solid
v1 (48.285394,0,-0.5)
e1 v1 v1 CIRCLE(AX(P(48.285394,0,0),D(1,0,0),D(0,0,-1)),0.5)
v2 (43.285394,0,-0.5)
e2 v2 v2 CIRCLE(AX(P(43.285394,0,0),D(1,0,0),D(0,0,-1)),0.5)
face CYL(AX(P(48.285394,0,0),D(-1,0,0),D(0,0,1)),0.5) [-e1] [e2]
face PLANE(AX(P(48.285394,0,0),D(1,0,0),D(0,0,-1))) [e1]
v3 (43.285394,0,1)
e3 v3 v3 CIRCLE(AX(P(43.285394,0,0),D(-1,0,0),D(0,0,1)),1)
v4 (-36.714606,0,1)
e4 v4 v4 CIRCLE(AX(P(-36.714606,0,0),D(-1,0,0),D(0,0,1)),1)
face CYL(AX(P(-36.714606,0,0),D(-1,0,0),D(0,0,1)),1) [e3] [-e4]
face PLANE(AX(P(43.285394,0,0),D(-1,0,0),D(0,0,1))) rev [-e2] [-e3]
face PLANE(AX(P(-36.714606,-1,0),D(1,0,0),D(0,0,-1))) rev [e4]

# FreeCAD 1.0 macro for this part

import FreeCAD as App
import Part
import Sketcher
from FreeCAD import Vector

doc = App.newDocument("Part")
body = doc.addObject("PartDesign::Body", "Body")

# Sketch on XY plane
sketch1 = body.newObject("Sketcher::SketchObject", "Sketch")
sketch1.AttachmentSupport = (doc.getObject("XY_Plane"), [""])
sketch1.MapMode = "FlatFace"
sketch1.addGeometry([
    Part.LineSegment(Vector(-36.714606, 1, 0), Vector(-36.714606, 0, 0)),
    Part.LineSegment(Vector(-36.714606, 0, 0), Vector(43.285394, 0, 0)),
    Part.LineSegment(Vector(43.285394, 0, 0), Vector(43.285394, 1, 0)),
    Part.LineSegment(Vector(43.285394, 1, 0), Vector(-36.714606, 1, 0)),
], False)
sketch1.addConstraint([
    Sketcher.Constraint("Coincident", 0, 2, 1, 1),
    Sketcher.Constraint("Coincident", 1, 2, 2, 1),
    Sketcher.Constraint("Coincident", 2, 2, 3, 1),
    Sketcher.Constraint("Coincident", 3, 2, 0, 1),
    Sketcher.Constraint("Vertical", 0),
    Sketcher.Constraint("Horizontal", 1),
    Sketcher.Constraint("Vertical", 2),
    Sketcher.Constraint("Horizontal", 3),
    Sketcher.Constraint("PointOnObject", 0, 2, -1),
    Sketcher.Constraint("DistanceX", 1, 1, 1, 2, 80.0),
    Sketcher.Constraint("DistanceY", 0, 2, 0, 1, 1.0),
    Sketcher.Constraint("DistanceX", 0, 2, -1, 1, 36.714606),
])
revolution = body.newObject("PartDesign::Revolution", "Revolution")
revolution.Profile = sketch1
revolution.ReferenceAxis = (sketch1, ["H_Axis"])
revolution.Angle = 360

# Sketch on YZ plane
sketch2 = body.newObject("Sketcher::SketchObject", "Sketch001")
sketch2.AttachmentSupport = (doc.getObject("YZ_Plane"), [""])
sketch2.MapMode = "FlatFace"
sketch2.AttachmentOffset = App.Placement(Vector(0, 0, 43.285394), App.Rotation())
sketch2.addGeometry(Part.Circle(Vector(0, 0, 0), Vector(0, 0, 1), 0.5), False)
sketch2.addConstraint([
    Sketcher.Constraint("Coincident", 0, 3, -1, 1),
    Sketcher.Constraint("Diameter", 0, 1.0),
])
pad1 = body.newObject("PartDesign::Pad", "Pad")
pad1.Profile = sketch2
pad1.Length = 5

doc.recompute()
